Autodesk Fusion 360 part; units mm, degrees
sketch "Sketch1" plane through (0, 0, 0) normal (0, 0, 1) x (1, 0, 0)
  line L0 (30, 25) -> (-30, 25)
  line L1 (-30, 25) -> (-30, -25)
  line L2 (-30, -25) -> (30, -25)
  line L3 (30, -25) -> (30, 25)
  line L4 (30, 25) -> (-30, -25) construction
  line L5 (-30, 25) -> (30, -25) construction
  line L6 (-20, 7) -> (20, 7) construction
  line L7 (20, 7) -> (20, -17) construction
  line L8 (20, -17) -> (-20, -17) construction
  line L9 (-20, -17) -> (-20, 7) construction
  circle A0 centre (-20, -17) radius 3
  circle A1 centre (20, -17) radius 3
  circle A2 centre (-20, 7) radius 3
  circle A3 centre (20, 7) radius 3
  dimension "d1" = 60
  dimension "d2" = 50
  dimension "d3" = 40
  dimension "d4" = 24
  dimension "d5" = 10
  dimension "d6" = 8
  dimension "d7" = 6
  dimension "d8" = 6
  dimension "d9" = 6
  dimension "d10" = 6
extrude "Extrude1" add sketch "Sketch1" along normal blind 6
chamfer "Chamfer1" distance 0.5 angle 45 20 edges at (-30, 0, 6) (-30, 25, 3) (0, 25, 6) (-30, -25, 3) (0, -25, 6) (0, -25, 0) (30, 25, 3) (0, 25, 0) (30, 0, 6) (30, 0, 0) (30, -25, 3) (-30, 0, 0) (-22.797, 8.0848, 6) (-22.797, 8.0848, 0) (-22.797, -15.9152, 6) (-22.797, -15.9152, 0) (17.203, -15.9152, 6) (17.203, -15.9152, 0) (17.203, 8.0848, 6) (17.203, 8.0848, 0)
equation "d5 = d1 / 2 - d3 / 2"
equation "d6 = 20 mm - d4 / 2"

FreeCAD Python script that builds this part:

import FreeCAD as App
import Part
import Sketcher
Q = App.Units.Quantity

doc = App.newDocument("Part")
body = doc.addObject("PartDesign::Body", "Body")

sketch1 = body.newObject("Sketcher::SketchObject", "Sketch")
sketch1.AttachmentSupport = (doc.getObject("XY_Plane"), [""])
sketch1.MapMode = "FlatFace"
sketch1.addGeometry([
    Part.LineSegment(App.Vector(30, -25, 0), App.Vector(30, 25, 0)),
    Part.LineSegment(App.Vector(30, 25, 0), App.Vector(-30, 25, 0)),
    Part.LineSegment(App.Vector(-30, 25, 0), App.Vector(-30, -25, 0)),
    Part.LineSegment(App.Vector(-30, -25, 0), App.Vector(30, -25, 0)),
    Part.Circle(App.Vector(-20, -17, 0), App.Vector(0, 0, 1), 3),
    Part.Circle(App.Vector(20, -17, 0), App.Vector(0, 0, 1), 3),
    Part.Circle(App.Vector(-20, 7, 0), App.Vector(0, 0, 1), 3),
    Part.Circle(App.Vector(20, 7, 0), App.Vector(0, 0, 1), 3),
], False)
sketch1.addConstraint([
    Sketcher.Constraint("Coincident", 0, 2, 1, 1),
    Sketcher.Constraint("Coincident", 1, 2, 2, 1),
    Sketcher.Constraint("Coincident", 2, 2, 3, 1),
    Sketcher.Constraint("Coincident", 3, 2, 0, 1),
    Sketcher.Constraint("Vertical", 0),
    Sketcher.Constraint("Horizontal", 1),
    Sketcher.Constraint("Vertical", 2),
    Sketcher.Constraint("Horizontal", 3),
    Sketcher.Constraint("Equal", 4, 5),
    Sketcher.Constraint("Equal", 5, 6),
    Sketcher.Constraint("Equal", 6, 7),
    Sketcher.Constraint("Symmetric", 0, 2, 2, 2, -1, 1),
    Sketcher.Constraint("Symmetric", 4, 3, 5, 3, -2),
    Sketcher.Constraint("Symmetric", 6, 3, 7, 3, -2),
    Sketcher.Constraint("Vertical", 4, 3, 6, 3),
    Sketcher.Constraint("Diameter", 4, Q("6 mm")),
    Sketcher.Constraint("DistanceX", 1, 2, 1, 1, Q("60 mm")),
    Sketcher.Constraint("DistanceY", 0, 1, 0, 2, Q("50 mm")),
    Sketcher.Constraint("DistanceX", 4, 3, 5, 3, Q("40 mm")),
    Sketcher.Constraint("DistanceY", 4, 3, 6, 3, Q("24 mm")),
    Sketcher.Constraint("DistanceY", 2, 2, 4, 3, Q("8 mm")),
])
pad1 = body.newObject("PartDesign::Pad", "Pad")
pad1.Profile = sketch1
pad1.Length = 6
doc.recompute()

chamfer = body.newObject("PartDesign::Chamfer", "Chamfer")
chamfer.Base = (pad1, ["Edge1"])
chamfer.UseAllEdges = True
chamfer.Size = 0.5

doc.recompute()
